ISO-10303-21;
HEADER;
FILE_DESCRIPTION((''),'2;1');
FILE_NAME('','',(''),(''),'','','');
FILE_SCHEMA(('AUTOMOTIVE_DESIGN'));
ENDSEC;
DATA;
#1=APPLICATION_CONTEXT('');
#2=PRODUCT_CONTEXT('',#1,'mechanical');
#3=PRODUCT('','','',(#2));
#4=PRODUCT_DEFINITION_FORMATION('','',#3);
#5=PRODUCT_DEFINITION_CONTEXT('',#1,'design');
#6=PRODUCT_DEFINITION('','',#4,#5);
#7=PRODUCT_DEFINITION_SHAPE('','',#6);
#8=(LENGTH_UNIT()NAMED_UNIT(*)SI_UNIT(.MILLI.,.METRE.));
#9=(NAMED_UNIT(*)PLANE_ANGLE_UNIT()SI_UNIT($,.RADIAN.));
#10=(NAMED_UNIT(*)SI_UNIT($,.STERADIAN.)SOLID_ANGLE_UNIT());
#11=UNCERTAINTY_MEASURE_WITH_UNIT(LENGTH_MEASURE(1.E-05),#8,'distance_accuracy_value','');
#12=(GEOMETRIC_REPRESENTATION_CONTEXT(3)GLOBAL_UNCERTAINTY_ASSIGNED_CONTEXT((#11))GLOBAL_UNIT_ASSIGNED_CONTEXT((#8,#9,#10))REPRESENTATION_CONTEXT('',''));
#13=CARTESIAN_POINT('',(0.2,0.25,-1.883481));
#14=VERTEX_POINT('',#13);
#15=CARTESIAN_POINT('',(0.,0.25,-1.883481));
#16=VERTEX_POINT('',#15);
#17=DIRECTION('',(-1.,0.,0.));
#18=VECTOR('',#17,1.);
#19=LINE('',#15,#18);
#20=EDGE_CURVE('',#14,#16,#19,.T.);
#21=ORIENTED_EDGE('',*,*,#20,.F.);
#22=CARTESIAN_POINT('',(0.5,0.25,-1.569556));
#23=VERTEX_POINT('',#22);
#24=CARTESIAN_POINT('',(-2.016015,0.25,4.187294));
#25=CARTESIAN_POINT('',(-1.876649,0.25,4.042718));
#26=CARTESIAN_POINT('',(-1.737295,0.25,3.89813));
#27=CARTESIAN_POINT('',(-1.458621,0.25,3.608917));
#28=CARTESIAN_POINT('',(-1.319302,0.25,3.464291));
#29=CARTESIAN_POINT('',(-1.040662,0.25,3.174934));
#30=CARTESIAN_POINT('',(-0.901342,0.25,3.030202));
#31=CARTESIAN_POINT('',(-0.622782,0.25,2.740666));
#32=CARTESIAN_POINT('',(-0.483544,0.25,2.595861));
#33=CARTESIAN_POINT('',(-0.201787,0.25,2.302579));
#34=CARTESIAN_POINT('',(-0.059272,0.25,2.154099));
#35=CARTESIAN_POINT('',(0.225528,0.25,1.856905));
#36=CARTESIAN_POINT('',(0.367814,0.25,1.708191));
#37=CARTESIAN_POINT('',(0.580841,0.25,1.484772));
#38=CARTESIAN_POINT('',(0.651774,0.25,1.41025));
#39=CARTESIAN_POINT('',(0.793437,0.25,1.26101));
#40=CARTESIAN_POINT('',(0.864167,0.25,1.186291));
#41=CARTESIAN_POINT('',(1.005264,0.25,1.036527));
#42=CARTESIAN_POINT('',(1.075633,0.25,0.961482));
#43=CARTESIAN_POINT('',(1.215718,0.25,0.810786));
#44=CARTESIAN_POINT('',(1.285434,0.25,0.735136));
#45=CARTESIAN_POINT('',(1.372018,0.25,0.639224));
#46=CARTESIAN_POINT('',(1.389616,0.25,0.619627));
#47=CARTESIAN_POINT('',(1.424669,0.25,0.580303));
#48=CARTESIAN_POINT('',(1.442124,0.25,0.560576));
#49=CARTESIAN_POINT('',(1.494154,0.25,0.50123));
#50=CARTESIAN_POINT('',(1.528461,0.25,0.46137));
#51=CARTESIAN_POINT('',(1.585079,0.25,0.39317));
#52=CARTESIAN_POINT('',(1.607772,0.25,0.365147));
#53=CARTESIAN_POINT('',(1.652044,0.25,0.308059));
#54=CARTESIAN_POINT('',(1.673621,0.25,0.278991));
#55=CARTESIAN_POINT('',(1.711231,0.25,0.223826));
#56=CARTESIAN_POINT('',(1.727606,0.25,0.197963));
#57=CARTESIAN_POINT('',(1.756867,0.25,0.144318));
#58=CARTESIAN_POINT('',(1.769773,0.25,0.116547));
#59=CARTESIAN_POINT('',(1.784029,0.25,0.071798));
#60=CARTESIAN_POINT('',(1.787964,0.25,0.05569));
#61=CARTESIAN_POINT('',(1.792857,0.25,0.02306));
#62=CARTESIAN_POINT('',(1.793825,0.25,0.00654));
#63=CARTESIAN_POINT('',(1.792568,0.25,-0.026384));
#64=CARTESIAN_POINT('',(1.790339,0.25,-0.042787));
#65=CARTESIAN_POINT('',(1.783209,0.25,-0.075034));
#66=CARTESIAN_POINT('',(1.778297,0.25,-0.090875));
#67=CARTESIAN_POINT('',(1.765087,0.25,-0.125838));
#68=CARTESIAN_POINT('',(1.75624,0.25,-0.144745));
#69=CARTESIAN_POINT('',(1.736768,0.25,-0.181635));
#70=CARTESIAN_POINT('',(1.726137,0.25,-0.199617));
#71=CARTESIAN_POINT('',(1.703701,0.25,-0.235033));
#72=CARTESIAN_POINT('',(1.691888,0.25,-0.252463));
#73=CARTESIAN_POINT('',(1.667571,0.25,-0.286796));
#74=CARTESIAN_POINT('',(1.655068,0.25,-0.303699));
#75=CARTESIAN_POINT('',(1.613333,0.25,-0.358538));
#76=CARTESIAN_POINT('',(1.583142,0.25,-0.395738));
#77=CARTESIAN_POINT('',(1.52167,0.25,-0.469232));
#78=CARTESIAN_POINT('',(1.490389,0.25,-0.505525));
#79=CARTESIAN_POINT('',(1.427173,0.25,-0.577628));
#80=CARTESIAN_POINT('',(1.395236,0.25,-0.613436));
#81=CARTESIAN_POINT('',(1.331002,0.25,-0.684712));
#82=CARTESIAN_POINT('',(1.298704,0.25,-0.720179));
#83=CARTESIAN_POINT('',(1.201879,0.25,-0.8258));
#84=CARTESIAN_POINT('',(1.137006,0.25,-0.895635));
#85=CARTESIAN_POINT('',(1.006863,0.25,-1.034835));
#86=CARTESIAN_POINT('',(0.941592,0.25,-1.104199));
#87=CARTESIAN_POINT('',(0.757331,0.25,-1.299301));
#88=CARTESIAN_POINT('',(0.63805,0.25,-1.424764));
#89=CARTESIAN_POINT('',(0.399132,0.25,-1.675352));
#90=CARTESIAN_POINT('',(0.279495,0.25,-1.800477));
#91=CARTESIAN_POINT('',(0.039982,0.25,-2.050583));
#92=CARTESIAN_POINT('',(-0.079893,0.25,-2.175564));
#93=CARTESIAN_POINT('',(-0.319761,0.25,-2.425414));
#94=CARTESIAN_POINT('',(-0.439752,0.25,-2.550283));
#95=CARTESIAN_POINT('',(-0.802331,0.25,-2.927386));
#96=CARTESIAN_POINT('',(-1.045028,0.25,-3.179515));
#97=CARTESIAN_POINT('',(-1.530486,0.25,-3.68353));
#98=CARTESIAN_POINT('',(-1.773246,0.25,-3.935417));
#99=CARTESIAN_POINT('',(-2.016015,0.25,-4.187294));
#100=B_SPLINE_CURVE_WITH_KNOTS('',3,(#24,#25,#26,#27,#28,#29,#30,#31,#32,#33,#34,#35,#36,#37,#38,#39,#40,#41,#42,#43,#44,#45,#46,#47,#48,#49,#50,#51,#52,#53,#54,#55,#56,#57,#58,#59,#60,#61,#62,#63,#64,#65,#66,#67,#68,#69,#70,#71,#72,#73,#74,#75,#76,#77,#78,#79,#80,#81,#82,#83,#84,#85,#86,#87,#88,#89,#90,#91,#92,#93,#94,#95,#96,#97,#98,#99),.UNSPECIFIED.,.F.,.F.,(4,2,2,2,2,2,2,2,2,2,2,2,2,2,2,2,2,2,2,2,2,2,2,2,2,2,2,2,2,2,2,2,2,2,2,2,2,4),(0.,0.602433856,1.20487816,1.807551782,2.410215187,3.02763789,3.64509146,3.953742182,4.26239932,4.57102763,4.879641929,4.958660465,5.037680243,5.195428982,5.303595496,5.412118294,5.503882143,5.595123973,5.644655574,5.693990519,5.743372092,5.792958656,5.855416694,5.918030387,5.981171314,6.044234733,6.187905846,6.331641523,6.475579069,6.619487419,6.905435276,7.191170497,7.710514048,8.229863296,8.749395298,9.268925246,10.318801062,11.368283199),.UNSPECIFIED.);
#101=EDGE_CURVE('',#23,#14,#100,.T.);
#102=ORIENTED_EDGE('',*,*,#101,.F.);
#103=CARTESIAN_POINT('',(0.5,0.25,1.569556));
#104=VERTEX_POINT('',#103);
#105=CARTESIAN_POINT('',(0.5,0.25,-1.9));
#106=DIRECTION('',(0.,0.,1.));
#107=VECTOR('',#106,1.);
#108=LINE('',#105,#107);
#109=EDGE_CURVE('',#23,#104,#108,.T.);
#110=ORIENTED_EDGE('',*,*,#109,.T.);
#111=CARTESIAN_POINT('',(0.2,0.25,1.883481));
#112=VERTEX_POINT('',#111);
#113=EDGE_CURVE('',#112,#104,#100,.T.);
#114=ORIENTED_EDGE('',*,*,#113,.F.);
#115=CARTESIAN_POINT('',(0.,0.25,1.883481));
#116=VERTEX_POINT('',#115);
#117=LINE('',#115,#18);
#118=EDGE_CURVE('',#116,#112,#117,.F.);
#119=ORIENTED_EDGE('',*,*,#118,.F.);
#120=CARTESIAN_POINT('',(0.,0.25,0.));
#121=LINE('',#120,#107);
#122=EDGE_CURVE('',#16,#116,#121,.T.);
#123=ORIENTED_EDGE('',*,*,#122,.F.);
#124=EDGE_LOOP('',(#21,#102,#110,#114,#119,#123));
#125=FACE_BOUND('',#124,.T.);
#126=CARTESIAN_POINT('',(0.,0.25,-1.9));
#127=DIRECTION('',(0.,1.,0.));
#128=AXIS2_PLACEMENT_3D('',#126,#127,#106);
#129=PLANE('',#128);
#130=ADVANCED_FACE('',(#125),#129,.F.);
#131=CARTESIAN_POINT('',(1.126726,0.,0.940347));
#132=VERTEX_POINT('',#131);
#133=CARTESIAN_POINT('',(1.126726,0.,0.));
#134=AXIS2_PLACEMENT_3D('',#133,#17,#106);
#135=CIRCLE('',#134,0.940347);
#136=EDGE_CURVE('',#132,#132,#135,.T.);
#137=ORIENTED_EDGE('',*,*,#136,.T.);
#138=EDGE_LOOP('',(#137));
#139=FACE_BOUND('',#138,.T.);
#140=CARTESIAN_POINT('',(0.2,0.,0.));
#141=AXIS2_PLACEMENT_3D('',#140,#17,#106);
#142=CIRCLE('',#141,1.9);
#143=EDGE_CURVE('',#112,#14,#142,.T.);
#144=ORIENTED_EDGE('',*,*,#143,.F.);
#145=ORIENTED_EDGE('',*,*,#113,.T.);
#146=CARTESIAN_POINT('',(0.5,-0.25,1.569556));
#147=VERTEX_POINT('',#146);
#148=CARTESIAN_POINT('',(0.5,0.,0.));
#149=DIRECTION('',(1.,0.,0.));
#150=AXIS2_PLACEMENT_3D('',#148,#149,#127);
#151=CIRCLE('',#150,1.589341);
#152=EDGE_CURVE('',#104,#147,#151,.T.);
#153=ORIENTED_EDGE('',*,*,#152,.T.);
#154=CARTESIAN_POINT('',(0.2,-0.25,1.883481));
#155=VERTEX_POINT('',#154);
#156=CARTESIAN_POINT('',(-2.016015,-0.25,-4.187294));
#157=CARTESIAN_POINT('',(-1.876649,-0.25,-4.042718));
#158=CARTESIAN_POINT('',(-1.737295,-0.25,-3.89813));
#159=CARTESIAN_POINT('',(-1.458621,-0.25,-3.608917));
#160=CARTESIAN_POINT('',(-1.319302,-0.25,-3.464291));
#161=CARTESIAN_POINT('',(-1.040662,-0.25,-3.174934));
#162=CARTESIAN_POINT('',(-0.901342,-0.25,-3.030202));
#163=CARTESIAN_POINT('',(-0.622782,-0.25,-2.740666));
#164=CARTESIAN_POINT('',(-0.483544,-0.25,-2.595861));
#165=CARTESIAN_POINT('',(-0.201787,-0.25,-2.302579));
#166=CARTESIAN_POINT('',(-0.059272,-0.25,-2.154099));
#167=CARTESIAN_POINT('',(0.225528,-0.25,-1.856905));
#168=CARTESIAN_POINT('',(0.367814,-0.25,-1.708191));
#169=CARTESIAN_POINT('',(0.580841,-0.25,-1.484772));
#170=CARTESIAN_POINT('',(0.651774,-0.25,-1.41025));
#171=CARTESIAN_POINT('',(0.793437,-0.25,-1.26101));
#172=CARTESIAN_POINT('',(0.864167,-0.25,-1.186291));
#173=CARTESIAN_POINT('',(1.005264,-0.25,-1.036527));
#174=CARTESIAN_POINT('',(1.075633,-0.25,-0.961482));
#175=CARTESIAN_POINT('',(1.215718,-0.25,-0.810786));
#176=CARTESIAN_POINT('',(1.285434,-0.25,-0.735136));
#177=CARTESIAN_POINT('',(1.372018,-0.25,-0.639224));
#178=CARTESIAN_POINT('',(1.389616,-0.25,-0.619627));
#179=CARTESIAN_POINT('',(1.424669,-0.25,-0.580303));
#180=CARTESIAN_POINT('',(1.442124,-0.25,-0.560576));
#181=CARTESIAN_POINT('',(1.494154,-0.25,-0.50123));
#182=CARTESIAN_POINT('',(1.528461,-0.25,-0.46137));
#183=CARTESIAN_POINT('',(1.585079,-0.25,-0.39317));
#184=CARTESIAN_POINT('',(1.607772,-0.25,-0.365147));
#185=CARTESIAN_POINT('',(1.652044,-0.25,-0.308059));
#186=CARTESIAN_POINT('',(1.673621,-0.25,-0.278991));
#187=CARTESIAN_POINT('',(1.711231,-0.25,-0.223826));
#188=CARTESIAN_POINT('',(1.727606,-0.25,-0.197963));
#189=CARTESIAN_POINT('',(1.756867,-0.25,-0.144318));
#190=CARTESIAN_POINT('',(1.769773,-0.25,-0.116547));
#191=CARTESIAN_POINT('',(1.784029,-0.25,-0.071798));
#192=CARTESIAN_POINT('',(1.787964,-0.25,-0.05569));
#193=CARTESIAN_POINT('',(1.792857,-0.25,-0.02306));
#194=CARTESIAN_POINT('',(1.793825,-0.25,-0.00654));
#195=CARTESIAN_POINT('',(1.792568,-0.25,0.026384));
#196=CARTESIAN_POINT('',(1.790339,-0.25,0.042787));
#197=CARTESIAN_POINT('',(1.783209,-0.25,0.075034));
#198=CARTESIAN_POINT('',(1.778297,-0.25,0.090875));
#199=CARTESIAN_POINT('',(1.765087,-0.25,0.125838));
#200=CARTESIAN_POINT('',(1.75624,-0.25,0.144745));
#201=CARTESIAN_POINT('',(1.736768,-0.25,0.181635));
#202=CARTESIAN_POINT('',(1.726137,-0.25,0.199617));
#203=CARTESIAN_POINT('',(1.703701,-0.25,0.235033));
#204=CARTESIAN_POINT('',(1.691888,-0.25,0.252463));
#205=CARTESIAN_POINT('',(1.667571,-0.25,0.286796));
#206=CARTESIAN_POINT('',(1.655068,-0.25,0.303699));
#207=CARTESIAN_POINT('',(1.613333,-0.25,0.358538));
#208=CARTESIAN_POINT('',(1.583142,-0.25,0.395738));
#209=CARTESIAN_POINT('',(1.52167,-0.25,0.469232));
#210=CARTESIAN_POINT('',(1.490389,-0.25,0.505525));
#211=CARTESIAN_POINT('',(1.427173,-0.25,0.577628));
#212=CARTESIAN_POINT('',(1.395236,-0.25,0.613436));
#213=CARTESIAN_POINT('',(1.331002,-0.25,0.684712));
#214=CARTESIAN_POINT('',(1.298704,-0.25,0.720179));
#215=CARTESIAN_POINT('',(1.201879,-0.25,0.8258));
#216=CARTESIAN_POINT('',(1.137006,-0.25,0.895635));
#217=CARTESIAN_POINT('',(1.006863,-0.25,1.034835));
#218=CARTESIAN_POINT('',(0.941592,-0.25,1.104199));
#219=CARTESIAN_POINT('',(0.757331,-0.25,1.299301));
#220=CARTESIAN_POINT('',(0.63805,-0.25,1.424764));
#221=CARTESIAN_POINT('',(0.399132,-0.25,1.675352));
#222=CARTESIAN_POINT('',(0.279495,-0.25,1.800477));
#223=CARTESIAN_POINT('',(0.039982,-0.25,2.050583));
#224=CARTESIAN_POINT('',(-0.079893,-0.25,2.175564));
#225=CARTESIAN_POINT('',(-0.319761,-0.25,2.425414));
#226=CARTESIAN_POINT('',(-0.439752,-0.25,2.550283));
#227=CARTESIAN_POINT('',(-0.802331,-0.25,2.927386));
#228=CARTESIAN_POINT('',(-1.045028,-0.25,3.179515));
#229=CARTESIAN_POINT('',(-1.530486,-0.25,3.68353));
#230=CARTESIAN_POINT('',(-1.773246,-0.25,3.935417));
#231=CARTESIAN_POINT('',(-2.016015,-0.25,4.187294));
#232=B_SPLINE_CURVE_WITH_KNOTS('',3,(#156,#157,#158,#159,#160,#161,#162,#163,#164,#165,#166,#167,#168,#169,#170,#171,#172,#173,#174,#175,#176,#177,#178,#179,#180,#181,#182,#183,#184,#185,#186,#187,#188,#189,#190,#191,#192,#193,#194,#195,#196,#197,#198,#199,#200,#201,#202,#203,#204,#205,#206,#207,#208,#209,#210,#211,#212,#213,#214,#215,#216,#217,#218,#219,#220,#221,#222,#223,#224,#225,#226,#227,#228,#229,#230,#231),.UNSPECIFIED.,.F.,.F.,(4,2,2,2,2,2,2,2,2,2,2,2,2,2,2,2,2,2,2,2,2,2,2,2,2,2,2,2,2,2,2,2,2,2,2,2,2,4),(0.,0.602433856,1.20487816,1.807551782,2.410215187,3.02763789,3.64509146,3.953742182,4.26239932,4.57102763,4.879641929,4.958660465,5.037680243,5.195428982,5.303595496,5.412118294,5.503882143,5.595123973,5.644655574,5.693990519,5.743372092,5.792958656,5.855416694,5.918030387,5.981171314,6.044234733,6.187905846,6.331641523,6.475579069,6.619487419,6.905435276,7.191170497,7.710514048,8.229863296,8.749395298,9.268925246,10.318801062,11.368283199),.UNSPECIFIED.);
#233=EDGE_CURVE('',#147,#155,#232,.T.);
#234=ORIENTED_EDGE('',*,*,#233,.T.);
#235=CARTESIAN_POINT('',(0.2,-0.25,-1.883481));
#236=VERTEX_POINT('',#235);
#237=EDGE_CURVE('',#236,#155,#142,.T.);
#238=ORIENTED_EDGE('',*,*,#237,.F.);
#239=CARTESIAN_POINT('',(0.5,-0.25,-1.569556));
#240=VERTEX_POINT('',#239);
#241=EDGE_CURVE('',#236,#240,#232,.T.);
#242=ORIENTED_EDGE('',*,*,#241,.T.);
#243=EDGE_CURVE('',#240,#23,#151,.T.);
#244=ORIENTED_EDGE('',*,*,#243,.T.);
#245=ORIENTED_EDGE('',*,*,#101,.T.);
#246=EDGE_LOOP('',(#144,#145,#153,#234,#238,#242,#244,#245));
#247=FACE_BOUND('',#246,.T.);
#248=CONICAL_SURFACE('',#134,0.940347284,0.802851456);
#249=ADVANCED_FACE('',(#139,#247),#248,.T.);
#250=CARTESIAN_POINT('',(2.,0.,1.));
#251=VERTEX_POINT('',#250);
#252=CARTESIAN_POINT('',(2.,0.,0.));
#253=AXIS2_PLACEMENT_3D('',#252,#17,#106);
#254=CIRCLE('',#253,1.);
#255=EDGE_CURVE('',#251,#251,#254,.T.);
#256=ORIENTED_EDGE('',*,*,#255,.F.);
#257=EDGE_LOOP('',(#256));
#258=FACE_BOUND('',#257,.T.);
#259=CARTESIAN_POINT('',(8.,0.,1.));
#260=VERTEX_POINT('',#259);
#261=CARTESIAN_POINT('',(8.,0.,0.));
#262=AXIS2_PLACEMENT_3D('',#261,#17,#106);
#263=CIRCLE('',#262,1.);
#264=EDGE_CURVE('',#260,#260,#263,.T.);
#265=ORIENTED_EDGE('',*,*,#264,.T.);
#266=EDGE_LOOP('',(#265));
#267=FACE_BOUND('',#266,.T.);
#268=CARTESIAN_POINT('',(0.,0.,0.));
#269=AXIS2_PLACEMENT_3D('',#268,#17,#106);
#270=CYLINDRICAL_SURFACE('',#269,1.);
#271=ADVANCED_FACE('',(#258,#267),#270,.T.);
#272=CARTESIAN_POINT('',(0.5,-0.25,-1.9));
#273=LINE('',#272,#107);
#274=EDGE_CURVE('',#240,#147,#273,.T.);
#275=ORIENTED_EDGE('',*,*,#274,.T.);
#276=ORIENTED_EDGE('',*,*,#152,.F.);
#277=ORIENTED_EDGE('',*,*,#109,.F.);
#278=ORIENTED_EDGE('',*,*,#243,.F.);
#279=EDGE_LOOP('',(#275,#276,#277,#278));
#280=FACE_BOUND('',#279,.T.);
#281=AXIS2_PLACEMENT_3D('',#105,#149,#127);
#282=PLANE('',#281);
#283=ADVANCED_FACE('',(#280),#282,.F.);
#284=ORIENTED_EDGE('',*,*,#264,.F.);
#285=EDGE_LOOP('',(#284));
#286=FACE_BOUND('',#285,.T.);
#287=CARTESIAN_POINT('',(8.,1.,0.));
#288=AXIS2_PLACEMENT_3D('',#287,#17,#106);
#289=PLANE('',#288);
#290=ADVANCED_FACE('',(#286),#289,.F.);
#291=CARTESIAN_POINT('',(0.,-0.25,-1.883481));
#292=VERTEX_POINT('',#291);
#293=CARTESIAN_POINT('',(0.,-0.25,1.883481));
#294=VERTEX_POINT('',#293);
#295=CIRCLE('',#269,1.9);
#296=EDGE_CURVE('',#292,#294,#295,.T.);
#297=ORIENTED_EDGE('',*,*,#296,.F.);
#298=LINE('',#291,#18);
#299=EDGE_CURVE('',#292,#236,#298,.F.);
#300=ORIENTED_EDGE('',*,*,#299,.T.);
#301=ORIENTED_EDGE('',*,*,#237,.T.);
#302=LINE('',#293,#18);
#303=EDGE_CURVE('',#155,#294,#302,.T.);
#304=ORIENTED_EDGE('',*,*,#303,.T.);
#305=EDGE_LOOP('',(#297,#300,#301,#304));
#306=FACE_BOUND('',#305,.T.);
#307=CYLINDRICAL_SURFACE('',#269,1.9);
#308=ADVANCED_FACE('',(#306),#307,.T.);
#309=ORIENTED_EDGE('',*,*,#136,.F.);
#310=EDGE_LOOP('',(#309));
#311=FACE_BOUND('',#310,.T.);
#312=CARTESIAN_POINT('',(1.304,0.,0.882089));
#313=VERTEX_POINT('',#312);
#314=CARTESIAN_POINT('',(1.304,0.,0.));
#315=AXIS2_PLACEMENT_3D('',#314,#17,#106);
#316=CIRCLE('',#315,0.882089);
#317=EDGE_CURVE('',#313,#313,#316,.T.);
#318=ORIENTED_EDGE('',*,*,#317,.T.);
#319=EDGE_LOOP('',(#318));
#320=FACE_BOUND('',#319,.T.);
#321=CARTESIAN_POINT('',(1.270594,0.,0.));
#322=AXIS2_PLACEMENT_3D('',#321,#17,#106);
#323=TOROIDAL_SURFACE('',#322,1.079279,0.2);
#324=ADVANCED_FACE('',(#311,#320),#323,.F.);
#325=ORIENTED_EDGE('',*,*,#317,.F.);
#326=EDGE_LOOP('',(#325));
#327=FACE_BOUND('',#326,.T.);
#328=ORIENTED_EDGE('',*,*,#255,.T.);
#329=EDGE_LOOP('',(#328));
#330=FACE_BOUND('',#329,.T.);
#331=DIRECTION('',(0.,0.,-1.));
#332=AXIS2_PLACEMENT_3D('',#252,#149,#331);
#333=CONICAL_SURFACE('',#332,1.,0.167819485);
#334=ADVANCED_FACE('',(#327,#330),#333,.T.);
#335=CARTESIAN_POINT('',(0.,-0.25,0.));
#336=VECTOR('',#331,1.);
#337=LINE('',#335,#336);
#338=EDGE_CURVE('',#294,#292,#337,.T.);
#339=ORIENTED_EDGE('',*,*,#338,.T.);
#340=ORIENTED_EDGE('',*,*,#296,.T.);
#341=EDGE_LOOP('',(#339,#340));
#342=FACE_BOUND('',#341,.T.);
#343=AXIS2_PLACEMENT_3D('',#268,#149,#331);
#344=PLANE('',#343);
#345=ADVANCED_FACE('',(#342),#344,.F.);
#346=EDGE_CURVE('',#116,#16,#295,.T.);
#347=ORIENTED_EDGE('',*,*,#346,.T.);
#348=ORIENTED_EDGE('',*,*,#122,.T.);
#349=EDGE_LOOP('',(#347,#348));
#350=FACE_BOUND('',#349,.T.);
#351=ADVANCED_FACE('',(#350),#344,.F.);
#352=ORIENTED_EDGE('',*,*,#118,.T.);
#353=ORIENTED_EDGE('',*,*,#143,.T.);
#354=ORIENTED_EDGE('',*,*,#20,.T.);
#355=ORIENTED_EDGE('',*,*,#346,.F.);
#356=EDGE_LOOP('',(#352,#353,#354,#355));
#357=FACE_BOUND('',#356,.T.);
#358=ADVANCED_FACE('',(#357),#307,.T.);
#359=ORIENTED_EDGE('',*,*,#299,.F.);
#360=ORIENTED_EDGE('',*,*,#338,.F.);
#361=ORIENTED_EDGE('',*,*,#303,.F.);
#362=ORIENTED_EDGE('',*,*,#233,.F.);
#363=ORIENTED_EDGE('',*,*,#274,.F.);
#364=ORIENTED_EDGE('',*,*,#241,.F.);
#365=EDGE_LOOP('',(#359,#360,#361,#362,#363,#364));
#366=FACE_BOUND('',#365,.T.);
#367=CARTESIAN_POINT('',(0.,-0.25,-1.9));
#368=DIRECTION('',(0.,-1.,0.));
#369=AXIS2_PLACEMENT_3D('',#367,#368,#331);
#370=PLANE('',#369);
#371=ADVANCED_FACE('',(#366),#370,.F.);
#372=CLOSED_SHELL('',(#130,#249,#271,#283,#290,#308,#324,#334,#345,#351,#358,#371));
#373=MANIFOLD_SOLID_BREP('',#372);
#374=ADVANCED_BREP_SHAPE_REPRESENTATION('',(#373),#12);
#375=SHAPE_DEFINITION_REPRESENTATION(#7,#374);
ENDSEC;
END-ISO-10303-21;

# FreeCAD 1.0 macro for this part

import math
import FreeCAD as App
import Part
import Sketcher
Q = App.Units.Quantity

doc = App.newDocument("Part")
params = doc.addObject("Spreadsheet::Sheet", "Params")
for row, (alias, value) in enumerate([
    ("sketch1_radius", "0.2 mm"),
    ("sketch1_width", "8 mm"),
    ("sketch1_width2", "6 mm"),
    ("sketch1_height", "1 mm"),
    ("sketch1_width3", "0.2 mm"),
    ("revolution_angle", "360 deg"),
    ("sketch2_width", "0.5 mm"),
], start=1):
    params.set(f"A{row}", alias)
    params.set(f"B{row}", "=" + value)
    params.setAlias(f"B{row}", alias)

body = doc.addObject("PartDesign::Body", "Body")

# Sketch on XY plane
sketch1 = body.newObject("Sketcher::SketchObject", "Sketch")
sketch1.AttachmentSupport = (doc.getObject("XY_Plane"), [""])
sketch1.MapMode = "FlatFace"
sketch1.addGeometry([
    Part.LineSegment(App.Vector(0, 1.9, 0), App.Vector(0, 0, 0)),  # 0
    Part.LineSegment(App.Vector(0, 0, 0), App.Vector(8, 0, 0)),  # 1
    Part.LineSegment(App.Vector(8, 0, 0), App.Vector(8, 1, 0)),  # 2
    Part.LineSegment(App.Vector(8, 1, 0), App.Vector(2, 1, 0)),  # 3
    Part.LineSegment(App.Vector(2, 1, 0), App.Vector(1.304, 0.882089, 0)),  # 4
    Part.ArcOfCircle(Part.Circle(App.Vector(1.270594, 1.079279, 0), App.Vector(0, 0, 1), 0.2), math.radians(-136), math.radians(-80.384652)),  # 5
    Part.LineSegment(App.Vector(1.126726, 0.940347, 0), App.Vector(0.2, 1.9, 0)),  # 6
    Part.LineSegment(App.Vector(0.2, 1.9, 0), App.Vector(0, 1.9, 0)),  # 7
], False)
sketch1.addConstraint([
    Sketcher.Constraint("Coincident", 0, 2, 1, 1),
    Sketcher.Constraint("Coincident", 1, 2, 2, 1),
    Sketcher.Constraint("Coincident", 2, 2, 3, 1),
    Sketcher.Constraint("Coincident", 3, 2, 4, 1),
    Sketcher.Constraint("Tangent", 4, 2, 5, 2),
    Sketcher.Constraint("Tangent", 5, 1, 6, 1),
    Sketcher.Constraint("Coincident", 6, 2, 7, 1),
    Sketcher.Constraint("Coincident", 7, 2, 0, 1),
    Sketcher.Constraint("Vertical", 0),
    Sketcher.Constraint("Horizontal", 1),
    Sketcher.Constraint("Vertical", 2),
    Sketcher.Constraint("Horizontal", 3),
    Sketcher.Constraint("Horizontal", 7),
    Sketcher.Constraint("Coincident", 0, 2, -1, 1),
    Sketcher.Constraint("Radius", 5, Q("0.2 mm")),
    Sketcher.Constraint("DistanceX", 1, 1, 1, 2, Q("8 mm")),
    Sketcher.Constraint("DistanceX", 3, 2, 3, 1, Q("6 mm")),
    Sketcher.Constraint("DistanceY", 2, 1, 2, 2, Q("1 mm")),
    Sketcher.Constraint("Angle", 6, Q("134 deg")),
    Sketcher.Constraint("DistanceX", 7, 2, 7, 1, Q("0.2 mm")),
    Sketcher.Constraint("DistanceY", 0, 2, 0, 1, Q("1.9 mm")),
    Sketcher.Constraint("DistanceX", -1, 1, 4, 2, Q("1.304 mm")),
])
sketch1.setExpression("Constraints[14]", "Params.sketch1_radius")
sketch1.setExpression("Constraints[15]", "Params.sketch1_width")
sketch1.setExpression("Constraints[16]", "Params.sketch1_width2")
sketch1.setExpression("Constraints[17]", "Params.sketch1_height")
sketch1.setExpression("Constraints[19]", "Params.sketch1_width3")
revolution = body.newObject("PartDesign::Revolution", "Revolution")
revolution.Profile = sketch1
revolution.ReferenceAxis = (sketch1, ["H_Axis"])
revolution.setExpression("Angle", "Params.revolution_angle")

# Sketch on XY plane
sketch2 = body.newObject("Sketcher::SketchObject", "Sketch001")
sketch2.AttachmentSupport = (doc.getObject("XY_Plane"), [""])
sketch2.MapMode = "FlatFace"
sketch2.addGeometry([
    Part.LineSegment(App.Vector(0, 0.25, 0), App.Vector(0, -0.25, 0)),
    Part.LineSegment(App.Vector(0, -0.25, 0), App.Vector(0.5, -0.25, 0)),
    Part.LineSegment(App.Vector(0.5, -0.25, 0), App.Vector(0.5, 0.25, 0)),
    Part.LineSegment(App.Vector(0.5, 0.25, 0), App.Vector(0, 0.25, 0)),
], False)
sketch2.addConstraint([
    Sketcher.Constraint("Coincident", 0, 2, 1, 1),
    Sketcher.Constraint("Coincident", 1, 2, 2, 1),
    Sketcher.Constraint("Coincident", 2, 2, 3, 1),
    Sketcher.Constraint("Coincident", 3, 2, 0, 1),
    Sketcher.Constraint("Vertical", 0),
    Sketcher.Constraint("Horizontal", 1),
    Sketcher.Constraint("Vertical", 2),
    Sketcher.Constraint("Horizontal", 3),
    Sketcher.Constraint("Symmetric", 0, 2, 3, 2, -1, 1),
    Sketcher.Constraint("Equal", 3, 0),
    Sketcher.Constraint("DistanceX", 1, 1, 1, 2, Q("0.5 mm")),
])
sketch2.setExpression("Constraints[10]", "Params.sketch2_width")
pocket1 = body.newObject("PartDesign::Pocket", "Pocket")
pocket1.Profile = sketch2
pocket1.Type = "ThroughAll"
pocket1.Midplane = True

doc.recompute()
